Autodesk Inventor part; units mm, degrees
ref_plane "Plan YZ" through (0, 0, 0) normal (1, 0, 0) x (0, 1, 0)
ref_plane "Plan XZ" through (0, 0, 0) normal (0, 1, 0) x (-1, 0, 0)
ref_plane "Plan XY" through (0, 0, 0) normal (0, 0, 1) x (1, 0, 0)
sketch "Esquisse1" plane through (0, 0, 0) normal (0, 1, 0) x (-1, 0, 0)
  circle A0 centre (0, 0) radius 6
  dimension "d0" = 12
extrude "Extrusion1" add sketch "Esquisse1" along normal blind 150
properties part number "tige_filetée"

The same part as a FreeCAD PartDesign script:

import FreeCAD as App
import Part
import Sketcher
from FreeCAD import Vector

doc = App.newDocument("Part")
body = doc.addObject("PartDesign::Body", "Body")

sketch1 = body.newObject("Sketcher::SketchObject", "Sketch")
sketch1.AttachmentSupport = (doc.getObject("XZ_Plane"), [""])
sketch1.MapMode = "FlatFace"
sketch1.addGeometry(Part.Circle(Vector(0, 0, 0), Vector(0, 0, 1), 6), False)
sketch1.addConstraint(Sketcher.Constraint("Coincident", 0, 3, -1, 1))
sketch1.addConstraint(Sketcher.Constraint("Diameter", 0, 12.0))
pad1 = body.newObject("PartDesign::Pad", "Pad")
pad1.Profile = sketch1
pad1.Length = 150
pad1.Reversed = True

doc.recompute()
